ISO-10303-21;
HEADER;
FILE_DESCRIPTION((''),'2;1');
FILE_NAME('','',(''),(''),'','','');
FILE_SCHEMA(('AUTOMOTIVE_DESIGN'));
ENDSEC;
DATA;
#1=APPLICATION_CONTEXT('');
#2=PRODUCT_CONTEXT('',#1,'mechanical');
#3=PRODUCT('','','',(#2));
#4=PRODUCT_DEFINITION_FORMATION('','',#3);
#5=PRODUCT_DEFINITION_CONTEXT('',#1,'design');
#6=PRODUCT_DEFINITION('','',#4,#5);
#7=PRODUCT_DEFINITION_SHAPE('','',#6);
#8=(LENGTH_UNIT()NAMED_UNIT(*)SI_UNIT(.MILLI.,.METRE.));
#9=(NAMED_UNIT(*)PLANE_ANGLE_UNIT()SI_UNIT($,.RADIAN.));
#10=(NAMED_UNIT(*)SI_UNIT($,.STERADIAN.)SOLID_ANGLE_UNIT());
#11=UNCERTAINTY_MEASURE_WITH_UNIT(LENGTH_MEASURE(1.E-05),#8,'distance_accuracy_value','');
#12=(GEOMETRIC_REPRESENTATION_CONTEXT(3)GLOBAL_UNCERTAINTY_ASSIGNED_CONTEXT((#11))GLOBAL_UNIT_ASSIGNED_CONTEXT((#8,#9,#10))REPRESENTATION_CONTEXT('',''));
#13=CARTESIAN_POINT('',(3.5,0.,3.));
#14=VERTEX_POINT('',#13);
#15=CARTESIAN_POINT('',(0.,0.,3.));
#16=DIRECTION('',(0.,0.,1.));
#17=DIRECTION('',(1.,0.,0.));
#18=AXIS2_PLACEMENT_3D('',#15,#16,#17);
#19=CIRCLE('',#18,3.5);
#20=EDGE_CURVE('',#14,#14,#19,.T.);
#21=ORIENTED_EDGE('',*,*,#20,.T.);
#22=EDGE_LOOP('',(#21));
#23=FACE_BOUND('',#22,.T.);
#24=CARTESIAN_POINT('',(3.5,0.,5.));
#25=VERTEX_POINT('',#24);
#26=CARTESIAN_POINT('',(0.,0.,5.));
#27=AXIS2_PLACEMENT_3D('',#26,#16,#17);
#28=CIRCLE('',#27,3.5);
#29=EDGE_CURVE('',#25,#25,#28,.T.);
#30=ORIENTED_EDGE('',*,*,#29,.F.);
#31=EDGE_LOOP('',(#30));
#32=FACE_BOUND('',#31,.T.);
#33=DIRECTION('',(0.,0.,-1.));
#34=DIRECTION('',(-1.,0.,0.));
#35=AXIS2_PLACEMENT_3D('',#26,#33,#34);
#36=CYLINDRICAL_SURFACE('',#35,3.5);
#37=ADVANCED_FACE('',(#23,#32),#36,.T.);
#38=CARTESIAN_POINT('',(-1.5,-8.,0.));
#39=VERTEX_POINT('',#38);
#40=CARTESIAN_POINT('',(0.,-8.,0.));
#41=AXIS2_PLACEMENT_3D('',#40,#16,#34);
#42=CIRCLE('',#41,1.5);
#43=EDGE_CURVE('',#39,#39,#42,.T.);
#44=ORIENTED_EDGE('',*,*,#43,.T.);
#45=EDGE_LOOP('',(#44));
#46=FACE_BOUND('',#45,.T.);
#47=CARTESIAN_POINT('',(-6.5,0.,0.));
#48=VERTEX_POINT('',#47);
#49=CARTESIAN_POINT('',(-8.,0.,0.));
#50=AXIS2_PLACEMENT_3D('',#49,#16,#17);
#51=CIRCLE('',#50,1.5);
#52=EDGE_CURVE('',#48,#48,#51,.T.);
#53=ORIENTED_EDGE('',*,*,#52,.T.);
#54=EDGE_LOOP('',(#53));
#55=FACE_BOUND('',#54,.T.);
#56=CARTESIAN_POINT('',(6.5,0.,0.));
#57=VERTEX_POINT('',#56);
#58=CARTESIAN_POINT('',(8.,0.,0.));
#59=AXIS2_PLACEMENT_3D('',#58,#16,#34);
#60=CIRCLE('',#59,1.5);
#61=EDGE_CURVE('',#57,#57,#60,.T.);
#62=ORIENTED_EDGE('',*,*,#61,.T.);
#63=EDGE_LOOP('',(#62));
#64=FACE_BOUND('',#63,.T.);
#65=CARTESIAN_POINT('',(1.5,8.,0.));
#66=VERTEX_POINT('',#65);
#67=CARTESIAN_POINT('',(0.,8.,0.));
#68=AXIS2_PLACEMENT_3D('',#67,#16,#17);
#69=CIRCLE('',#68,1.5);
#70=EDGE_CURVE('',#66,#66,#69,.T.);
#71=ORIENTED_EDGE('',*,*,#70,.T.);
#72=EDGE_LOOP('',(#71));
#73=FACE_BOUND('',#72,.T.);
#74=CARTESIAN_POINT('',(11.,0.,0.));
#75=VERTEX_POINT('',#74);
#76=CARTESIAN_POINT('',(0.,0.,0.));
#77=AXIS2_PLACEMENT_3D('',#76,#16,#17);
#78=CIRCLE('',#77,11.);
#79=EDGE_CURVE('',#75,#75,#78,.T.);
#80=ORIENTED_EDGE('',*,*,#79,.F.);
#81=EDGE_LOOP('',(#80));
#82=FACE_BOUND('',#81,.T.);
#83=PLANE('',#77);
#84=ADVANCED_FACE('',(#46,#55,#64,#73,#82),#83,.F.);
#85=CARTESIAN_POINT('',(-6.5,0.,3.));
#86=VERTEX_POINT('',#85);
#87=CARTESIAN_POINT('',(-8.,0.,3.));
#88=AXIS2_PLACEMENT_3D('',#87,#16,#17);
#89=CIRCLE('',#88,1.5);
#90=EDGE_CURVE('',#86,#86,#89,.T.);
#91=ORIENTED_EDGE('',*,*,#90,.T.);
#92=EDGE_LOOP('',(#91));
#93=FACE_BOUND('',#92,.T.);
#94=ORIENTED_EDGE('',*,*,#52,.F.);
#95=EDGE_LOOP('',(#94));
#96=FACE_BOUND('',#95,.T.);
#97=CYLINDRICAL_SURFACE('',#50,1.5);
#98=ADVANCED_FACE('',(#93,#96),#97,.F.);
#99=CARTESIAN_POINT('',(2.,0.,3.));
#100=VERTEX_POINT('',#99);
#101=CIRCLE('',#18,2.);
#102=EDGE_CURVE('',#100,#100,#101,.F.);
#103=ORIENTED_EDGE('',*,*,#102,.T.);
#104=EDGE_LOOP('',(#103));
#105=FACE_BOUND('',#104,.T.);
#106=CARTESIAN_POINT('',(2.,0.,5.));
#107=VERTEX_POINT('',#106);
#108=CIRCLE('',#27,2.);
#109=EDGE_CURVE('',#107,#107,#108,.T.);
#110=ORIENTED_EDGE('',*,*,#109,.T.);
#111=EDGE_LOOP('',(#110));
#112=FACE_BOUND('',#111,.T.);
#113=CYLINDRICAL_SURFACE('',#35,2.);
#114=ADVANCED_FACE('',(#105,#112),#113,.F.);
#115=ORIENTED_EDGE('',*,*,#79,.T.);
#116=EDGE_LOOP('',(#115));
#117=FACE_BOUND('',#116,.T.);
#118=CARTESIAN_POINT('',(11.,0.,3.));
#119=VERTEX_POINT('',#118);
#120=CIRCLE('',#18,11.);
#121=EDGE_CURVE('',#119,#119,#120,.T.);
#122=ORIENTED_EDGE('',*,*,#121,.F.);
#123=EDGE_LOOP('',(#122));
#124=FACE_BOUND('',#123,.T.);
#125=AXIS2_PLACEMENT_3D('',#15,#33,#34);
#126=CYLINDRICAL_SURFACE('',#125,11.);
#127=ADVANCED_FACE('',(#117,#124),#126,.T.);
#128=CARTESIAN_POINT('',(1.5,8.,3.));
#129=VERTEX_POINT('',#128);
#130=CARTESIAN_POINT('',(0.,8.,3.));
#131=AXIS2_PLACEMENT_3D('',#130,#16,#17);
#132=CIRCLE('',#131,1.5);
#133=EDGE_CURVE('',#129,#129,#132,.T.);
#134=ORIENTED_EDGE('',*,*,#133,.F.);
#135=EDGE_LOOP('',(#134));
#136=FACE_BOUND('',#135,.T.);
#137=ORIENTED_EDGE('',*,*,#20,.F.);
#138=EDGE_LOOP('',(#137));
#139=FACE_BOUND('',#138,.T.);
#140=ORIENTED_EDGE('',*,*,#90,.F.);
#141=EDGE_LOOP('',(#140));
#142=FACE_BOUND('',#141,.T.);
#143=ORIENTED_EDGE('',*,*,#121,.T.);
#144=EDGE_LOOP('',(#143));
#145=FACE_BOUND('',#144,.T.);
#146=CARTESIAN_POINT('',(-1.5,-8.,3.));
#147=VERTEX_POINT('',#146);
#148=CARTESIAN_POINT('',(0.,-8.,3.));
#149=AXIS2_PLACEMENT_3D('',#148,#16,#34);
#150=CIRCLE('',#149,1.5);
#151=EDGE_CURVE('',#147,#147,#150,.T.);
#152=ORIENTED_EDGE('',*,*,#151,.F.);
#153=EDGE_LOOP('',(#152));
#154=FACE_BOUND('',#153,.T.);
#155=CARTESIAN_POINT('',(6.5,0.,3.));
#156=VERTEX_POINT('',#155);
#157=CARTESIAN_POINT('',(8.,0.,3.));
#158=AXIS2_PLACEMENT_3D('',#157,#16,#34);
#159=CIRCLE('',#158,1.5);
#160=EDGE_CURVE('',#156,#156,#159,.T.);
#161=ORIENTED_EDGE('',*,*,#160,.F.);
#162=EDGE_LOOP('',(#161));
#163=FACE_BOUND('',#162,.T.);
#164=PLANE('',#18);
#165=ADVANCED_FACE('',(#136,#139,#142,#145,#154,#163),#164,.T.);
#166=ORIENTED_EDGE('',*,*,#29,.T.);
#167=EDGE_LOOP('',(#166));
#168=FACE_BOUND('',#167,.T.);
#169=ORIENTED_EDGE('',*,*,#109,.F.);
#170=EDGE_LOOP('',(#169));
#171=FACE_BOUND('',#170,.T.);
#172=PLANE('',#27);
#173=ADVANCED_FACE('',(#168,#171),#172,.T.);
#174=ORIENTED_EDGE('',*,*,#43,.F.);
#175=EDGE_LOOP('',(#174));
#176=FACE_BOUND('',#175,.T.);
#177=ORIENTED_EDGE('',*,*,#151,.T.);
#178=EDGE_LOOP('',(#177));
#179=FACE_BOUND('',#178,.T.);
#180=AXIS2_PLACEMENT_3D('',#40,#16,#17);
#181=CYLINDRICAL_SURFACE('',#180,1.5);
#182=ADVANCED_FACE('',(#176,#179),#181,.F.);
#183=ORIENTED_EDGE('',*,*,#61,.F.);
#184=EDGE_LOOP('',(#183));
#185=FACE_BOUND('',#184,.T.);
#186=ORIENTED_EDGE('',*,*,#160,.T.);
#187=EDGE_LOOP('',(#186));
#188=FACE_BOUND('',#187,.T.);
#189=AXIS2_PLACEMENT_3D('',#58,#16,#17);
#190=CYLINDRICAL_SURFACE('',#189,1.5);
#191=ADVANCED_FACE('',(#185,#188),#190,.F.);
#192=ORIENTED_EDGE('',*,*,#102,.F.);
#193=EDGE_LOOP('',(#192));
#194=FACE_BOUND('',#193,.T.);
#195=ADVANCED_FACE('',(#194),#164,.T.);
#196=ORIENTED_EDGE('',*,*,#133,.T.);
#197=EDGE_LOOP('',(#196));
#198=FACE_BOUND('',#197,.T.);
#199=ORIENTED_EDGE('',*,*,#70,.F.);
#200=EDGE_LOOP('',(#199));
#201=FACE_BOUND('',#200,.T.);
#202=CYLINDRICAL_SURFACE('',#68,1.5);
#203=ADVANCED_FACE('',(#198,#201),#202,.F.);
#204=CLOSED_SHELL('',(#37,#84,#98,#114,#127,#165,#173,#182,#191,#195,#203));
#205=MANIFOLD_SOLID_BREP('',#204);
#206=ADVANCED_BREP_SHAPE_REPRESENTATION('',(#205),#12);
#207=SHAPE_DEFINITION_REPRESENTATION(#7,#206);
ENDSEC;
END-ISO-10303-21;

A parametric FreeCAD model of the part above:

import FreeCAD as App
import Part
import Sketcher
from FreeCAD import Vector
Q = App.Units.Quantity

doc = App.newDocument("Part")
body = doc.addObject("PartDesign::Body", "Body")

sketch1 = body.newObject("Sketcher::SketchObject", "Sketch")
sketch1.AttachmentSupport = (doc.getObject("XY_Plane"), [""])
sketch1.MapMode = "FlatFace"
sketch1.addGeometry(Part.Circle(Vector(0, 0, 0), Vector(0, 0, 1), 11), False)
sketch1.addConstraint(Sketcher.Constraint("Coincident", 0, 3, -1, 1))
sketch1.addConstraint(Sketcher.Constraint("Diameter", 0, Q("22 mm")))
pad1 = body.newObject("PartDesign::Pad", "Pad")
pad1.Profile = sketch1
pad1.Length = 3

sketch2 = body.newObject("Sketcher::SketchObject", "Sketch001")
sketch2.AttachmentSupport = (doc.getObject("XY_Plane"), [""])
sketch2.MapMode = "FlatFace"
sketch2.AttachmentOffset = App.Placement(Vector(0, 0, 3), App.Rotation())
sketch2.addGeometry(Part.Circle(Vector(0, 8, 0), Vector(0, 0, 1), 1.5), False)
sketch2.addGeometry(Part.Circle(Vector(-8, 0, 0), Vector(0, 0, 1), 1.5), False)
sketch2.addGeometry(Part.Circle(Vector(0, -8, 0), Vector(0, 0, 1), 1.5), False)
sketch2.addGeometry(Part.Circle(Vector(8, 0, 0), Vector(0, 0, 1), 1.5), False)
sketch2.addConstraint(Sketcher.Constraint("Equal", 0, 1))
sketch2.addConstraint(Sketcher.Constraint("Equal", 1, 2))
sketch2.addConstraint(Sketcher.Constraint("Equal", 2, 3))
sketch2.addConstraint(Sketcher.Constraint("Symmetric", 0, 3, 2, 3, -1, 1))
sketch2.addConstraint(Sketcher.Constraint("Symmetric", 1, 3, 3, 3, -1, 1))
sketch2.addConstraint(Sketcher.Constraint("PointOnObject", 0, 3, -2))
sketch2.addConstraint(Sketcher.Constraint("PointOnObject", 1, 3, -1))
sketch2.addConstraint(Sketcher.Constraint("Diameter", 0, Q("3 mm")))
sketch2.addConstraint(Sketcher.Constraint("DistanceY", -1, 1, 0, 3, Q("8 mm")))
sketch2.addConstraint(Sketcher.Constraint("DistanceX", 1, 3, -1, 1, Q("8 mm")))
pocket1 = body.newObject("PartDesign::Pocket", "Pocket")
pocket1.Profile = sketch2
pocket1.Length = 3

sketch3 = body.newObject("Sketcher::SketchObject", "Sketch002")
sketch3.AttachmentSupport = (doc.getObject("XY_Plane"), [""])
sketch3.MapMode = "FlatFace"
sketch3.AttachmentOffset = App.Placement(Vector(0, 0, 3), App.Rotation())
sketch3.addGeometry(Part.Circle(Vector(0, 0, 0), Vector(0, 0, 1), 3.5), False)
sketch3.addGeometry(Part.Circle(Vector(0, 0, 0), Vector(0, 0, 1), 2), False)
sketch3.addConstraint(Sketcher.Constraint("Coincident", 0, 3, -1, 1))
sketch3.addConstraint(Sketcher.Constraint("Coincident", 1, 3, -1, 1))
sketch3.addConstraint(Sketcher.Constraint("Diameter", 0, Q("7 mm")))
sketch3.addConstraint(Sketcher.Constraint("Diameter", 1, Q("4 mm")))
pad2 = body.newObject("PartDesign::Pad", "Pad001")
pad2.Profile = sketch3
pad2.Length = 2

doc.recompute()
